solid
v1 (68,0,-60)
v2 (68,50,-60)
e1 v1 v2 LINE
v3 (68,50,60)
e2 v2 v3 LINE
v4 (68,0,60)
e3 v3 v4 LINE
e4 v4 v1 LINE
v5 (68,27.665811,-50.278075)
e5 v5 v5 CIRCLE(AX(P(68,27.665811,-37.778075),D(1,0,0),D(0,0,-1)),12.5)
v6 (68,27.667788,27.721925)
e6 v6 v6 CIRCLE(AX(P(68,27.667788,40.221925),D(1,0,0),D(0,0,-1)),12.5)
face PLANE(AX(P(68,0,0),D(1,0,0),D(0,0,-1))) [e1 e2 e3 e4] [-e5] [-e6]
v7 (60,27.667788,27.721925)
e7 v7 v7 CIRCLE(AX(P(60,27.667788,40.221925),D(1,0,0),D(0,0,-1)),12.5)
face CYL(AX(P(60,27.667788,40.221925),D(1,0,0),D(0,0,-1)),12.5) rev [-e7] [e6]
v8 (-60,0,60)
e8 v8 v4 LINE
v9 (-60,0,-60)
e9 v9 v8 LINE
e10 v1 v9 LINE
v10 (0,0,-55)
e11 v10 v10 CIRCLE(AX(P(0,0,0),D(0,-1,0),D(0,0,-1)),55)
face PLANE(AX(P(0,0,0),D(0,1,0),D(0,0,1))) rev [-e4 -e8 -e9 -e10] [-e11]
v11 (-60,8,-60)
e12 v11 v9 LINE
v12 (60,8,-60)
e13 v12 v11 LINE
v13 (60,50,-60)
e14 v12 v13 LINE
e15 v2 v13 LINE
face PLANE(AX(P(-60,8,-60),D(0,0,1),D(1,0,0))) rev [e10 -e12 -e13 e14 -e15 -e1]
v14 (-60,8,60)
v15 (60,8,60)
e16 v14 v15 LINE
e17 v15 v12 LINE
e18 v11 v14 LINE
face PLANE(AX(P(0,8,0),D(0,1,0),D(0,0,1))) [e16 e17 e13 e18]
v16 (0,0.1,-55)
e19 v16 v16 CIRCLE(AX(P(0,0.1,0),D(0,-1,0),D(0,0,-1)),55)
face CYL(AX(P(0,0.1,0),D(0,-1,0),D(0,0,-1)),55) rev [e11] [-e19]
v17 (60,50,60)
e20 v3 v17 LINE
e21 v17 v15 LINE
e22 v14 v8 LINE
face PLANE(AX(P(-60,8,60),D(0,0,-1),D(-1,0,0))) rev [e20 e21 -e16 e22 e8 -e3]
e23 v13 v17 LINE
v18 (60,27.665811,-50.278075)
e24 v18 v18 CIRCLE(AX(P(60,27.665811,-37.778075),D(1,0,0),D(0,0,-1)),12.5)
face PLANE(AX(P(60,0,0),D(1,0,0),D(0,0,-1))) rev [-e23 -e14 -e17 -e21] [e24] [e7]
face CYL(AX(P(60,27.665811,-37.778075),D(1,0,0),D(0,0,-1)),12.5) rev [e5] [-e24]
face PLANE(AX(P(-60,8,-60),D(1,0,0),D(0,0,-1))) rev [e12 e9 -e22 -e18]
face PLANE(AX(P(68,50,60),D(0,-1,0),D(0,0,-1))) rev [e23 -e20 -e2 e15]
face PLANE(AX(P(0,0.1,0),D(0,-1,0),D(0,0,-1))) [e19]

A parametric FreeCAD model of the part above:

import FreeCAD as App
import Part
import Sketcher
Q = App.Units.Quantity

doc = App.newDocument("Part")
body = doc.addObject("PartDesign::Body", "Body")

sketch1 = body.newObject("Sketcher::SketchObject", "Sketch")
sketch1.AttachmentSupport = (doc.getObject("XZ_Plane"), [""])
sketch1.MapMode = "FlatFace"
sketch1.addGeometry([
    Part.LineSegment(App.Vector(-60, -60, 0), App.Vector(-60, 60, 0)),
    Part.LineSegment(App.Vector(-60, 60, 0), App.Vector(60, 60, 0)),
    Part.LineSegment(App.Vector(60, 60, 0), App.Vector(60, -60, 0)),
    Part.LineSegment(App.Vector(60, -60, 0), App.Vector(-60, -60, 0)),
], False)
sketch1.addConstraint([
    Sketcher.Constraint("Coincident", 0, 2, 1, 1),
    Sketcher.Constraint("Coincident", 1, 2, 2, 1),
    Sketcher.Constraint("Coincident", 2, 2, 3, 1),
    Sketcher.Constraint("Coincident", 3, 2, 0, 1),
    Sketcher.Constraint("Vertical", 0),
    Sketcher.Constraint("Horizontal", 1),
    Sketcher.Constraint("Vertical", 2),
    Sketcher.Constraint("Horizontal", 3),
    Sketcher.Constraint("Symmetric", 0, 2, 2, 2, -1, 1),
    Sketcher.Constraint("Equal", 3, 0),
    Sketcher.Constraint("DistanceX", 1, 1, 1, 2, Q("120 mm")),
])
pad1 = body.newObject("PartDesign::Pad", "Pad")
pad1.Profile = sketch1
pad1.Length = 8
pad1.Reversed = True

sketch2 = body.newObject("Sketcher::SketchObject", "Sketch001")
sketch2.AttachmentSupport = (doc.getObject("YZ_Plane"), [""])
sketch2.MapMode = "FlatFace"
sketch2.AttachmentOffset = App.Placement(App.Vector(0, 0, 60), App.Rotation())
sketch2.addGeometry([
    Part.LineSegment(App.Vector(50, 60, 0), App.Vector(0, 60, 0)),
    Part.LineSegment(App.Vector(0, 60, 0), App.Vector(0, -60, 0)),
    Part.LineSegment(App.Vector(0, -60, 0), App.Vector(50, -60, 0)),
    Part.LineSegment(App.Vector(50, -60, 0), App.Vector(50, 60, 0)),
], False)
sketch2.addConstraint([
    Sketcher.Constraint("Coincident", 0, 2, 1, 1),
    Sketcher.Constraint("Coincident", 1, 2, 2, 1),
    Sketcher.Constraint("Coincident", 2, 2, 3, 1),
    Sketcher.Constraint("Coincident", 3, 2, 0, 1),
    Sketcher.Constraint("Horizontal", 0),
    Sketcher.Constraint("Vertical", 1),
    Sketcher.Constraint("Horizontal", 2),
    Sketcher.Constraint("Vertical", 3),
    Sketcher.Constraint("Symmetric", 0, 2, 1, 2, -1, 1),
    Sketcher.Constraint("DistanceX", 0, 2, 0, 1, Q("50 mm")),
    Sketcher.Constraint("DistanceY", 1, 2, 1, 1, Q("120 mm")),
])
pad2 = body.newObject("PartDesign::Pad", "Pad001")
pad2.Profile = sketch2
pad2.Length = 8

sketch3 = body.newObject("Sketcher::SketchObject", "Sketch002")
sketch3.AttachmentSupport = (doc.getObject("YZ_Plane"), [""])
sketch3.MapMode = "FlatFace"
sketch3.AttachmentOffset = App.Placement(App.Vector(0, 0, 68), App.Rotation())
sketch3.addGeometry([
    Part.Circle(App.Vector(28, 40, 0), App.Vector(0, 0, 1), 12),
    Part.Circle(App.Vector(28, -38, 0), App.Vector(0, 0, 1), 12),
], False)
sketch3.addConstraint([
    Sketcher.Constraint("Equal", 0, 1),
    Sketcher.Constraint("Diameter", 0, Q("25 mm")),
    Sketcher.Constraint("DistanceY", 1, 3, 0, 3, Q("78 mm")),
    Sketcher.Constraint("DistanceX", -1, 1, 1, 3, Q("27.665811 mm")),
    Sketcher.Constraint("DistanceX", -1, 1, 0, 3, Q("27.667788 mm")),
    Sketcher.Constraint("DistanceY", -1, 1, 0, 3, Q("40.221925 mm")),
])
pocket1 = body.newObject("PartDesign::Pocket", "Pocket")
pocket1.Profile = sketch3
pocket1.Length = 8

sketch4 = body.newObject("Sketcher::SketchObject", "Sketch003")
sketch4.AttachmentSupport = (doc.getObject("XZ_Plane"), [""])
sketch4.MapMode = "FlatFace"
sketch4.addGeometry(Part.Circle(App.Vector(0, 0, 0), App.Vector(0, 0, 1), 55), False)
sketch4.addConstraint([
    Sketcher.Constraint("Coincident", 0, 3, -1, 1),
    Sketcher.Constraint("Diameter", 0, Q("110 mm")),
])
pocket2 = body.newObject("PartDesign::Pocket", "Pocket001")
pocket2.Profile = sketch4
pocket2.Length = 0.1

doc.recompute()
